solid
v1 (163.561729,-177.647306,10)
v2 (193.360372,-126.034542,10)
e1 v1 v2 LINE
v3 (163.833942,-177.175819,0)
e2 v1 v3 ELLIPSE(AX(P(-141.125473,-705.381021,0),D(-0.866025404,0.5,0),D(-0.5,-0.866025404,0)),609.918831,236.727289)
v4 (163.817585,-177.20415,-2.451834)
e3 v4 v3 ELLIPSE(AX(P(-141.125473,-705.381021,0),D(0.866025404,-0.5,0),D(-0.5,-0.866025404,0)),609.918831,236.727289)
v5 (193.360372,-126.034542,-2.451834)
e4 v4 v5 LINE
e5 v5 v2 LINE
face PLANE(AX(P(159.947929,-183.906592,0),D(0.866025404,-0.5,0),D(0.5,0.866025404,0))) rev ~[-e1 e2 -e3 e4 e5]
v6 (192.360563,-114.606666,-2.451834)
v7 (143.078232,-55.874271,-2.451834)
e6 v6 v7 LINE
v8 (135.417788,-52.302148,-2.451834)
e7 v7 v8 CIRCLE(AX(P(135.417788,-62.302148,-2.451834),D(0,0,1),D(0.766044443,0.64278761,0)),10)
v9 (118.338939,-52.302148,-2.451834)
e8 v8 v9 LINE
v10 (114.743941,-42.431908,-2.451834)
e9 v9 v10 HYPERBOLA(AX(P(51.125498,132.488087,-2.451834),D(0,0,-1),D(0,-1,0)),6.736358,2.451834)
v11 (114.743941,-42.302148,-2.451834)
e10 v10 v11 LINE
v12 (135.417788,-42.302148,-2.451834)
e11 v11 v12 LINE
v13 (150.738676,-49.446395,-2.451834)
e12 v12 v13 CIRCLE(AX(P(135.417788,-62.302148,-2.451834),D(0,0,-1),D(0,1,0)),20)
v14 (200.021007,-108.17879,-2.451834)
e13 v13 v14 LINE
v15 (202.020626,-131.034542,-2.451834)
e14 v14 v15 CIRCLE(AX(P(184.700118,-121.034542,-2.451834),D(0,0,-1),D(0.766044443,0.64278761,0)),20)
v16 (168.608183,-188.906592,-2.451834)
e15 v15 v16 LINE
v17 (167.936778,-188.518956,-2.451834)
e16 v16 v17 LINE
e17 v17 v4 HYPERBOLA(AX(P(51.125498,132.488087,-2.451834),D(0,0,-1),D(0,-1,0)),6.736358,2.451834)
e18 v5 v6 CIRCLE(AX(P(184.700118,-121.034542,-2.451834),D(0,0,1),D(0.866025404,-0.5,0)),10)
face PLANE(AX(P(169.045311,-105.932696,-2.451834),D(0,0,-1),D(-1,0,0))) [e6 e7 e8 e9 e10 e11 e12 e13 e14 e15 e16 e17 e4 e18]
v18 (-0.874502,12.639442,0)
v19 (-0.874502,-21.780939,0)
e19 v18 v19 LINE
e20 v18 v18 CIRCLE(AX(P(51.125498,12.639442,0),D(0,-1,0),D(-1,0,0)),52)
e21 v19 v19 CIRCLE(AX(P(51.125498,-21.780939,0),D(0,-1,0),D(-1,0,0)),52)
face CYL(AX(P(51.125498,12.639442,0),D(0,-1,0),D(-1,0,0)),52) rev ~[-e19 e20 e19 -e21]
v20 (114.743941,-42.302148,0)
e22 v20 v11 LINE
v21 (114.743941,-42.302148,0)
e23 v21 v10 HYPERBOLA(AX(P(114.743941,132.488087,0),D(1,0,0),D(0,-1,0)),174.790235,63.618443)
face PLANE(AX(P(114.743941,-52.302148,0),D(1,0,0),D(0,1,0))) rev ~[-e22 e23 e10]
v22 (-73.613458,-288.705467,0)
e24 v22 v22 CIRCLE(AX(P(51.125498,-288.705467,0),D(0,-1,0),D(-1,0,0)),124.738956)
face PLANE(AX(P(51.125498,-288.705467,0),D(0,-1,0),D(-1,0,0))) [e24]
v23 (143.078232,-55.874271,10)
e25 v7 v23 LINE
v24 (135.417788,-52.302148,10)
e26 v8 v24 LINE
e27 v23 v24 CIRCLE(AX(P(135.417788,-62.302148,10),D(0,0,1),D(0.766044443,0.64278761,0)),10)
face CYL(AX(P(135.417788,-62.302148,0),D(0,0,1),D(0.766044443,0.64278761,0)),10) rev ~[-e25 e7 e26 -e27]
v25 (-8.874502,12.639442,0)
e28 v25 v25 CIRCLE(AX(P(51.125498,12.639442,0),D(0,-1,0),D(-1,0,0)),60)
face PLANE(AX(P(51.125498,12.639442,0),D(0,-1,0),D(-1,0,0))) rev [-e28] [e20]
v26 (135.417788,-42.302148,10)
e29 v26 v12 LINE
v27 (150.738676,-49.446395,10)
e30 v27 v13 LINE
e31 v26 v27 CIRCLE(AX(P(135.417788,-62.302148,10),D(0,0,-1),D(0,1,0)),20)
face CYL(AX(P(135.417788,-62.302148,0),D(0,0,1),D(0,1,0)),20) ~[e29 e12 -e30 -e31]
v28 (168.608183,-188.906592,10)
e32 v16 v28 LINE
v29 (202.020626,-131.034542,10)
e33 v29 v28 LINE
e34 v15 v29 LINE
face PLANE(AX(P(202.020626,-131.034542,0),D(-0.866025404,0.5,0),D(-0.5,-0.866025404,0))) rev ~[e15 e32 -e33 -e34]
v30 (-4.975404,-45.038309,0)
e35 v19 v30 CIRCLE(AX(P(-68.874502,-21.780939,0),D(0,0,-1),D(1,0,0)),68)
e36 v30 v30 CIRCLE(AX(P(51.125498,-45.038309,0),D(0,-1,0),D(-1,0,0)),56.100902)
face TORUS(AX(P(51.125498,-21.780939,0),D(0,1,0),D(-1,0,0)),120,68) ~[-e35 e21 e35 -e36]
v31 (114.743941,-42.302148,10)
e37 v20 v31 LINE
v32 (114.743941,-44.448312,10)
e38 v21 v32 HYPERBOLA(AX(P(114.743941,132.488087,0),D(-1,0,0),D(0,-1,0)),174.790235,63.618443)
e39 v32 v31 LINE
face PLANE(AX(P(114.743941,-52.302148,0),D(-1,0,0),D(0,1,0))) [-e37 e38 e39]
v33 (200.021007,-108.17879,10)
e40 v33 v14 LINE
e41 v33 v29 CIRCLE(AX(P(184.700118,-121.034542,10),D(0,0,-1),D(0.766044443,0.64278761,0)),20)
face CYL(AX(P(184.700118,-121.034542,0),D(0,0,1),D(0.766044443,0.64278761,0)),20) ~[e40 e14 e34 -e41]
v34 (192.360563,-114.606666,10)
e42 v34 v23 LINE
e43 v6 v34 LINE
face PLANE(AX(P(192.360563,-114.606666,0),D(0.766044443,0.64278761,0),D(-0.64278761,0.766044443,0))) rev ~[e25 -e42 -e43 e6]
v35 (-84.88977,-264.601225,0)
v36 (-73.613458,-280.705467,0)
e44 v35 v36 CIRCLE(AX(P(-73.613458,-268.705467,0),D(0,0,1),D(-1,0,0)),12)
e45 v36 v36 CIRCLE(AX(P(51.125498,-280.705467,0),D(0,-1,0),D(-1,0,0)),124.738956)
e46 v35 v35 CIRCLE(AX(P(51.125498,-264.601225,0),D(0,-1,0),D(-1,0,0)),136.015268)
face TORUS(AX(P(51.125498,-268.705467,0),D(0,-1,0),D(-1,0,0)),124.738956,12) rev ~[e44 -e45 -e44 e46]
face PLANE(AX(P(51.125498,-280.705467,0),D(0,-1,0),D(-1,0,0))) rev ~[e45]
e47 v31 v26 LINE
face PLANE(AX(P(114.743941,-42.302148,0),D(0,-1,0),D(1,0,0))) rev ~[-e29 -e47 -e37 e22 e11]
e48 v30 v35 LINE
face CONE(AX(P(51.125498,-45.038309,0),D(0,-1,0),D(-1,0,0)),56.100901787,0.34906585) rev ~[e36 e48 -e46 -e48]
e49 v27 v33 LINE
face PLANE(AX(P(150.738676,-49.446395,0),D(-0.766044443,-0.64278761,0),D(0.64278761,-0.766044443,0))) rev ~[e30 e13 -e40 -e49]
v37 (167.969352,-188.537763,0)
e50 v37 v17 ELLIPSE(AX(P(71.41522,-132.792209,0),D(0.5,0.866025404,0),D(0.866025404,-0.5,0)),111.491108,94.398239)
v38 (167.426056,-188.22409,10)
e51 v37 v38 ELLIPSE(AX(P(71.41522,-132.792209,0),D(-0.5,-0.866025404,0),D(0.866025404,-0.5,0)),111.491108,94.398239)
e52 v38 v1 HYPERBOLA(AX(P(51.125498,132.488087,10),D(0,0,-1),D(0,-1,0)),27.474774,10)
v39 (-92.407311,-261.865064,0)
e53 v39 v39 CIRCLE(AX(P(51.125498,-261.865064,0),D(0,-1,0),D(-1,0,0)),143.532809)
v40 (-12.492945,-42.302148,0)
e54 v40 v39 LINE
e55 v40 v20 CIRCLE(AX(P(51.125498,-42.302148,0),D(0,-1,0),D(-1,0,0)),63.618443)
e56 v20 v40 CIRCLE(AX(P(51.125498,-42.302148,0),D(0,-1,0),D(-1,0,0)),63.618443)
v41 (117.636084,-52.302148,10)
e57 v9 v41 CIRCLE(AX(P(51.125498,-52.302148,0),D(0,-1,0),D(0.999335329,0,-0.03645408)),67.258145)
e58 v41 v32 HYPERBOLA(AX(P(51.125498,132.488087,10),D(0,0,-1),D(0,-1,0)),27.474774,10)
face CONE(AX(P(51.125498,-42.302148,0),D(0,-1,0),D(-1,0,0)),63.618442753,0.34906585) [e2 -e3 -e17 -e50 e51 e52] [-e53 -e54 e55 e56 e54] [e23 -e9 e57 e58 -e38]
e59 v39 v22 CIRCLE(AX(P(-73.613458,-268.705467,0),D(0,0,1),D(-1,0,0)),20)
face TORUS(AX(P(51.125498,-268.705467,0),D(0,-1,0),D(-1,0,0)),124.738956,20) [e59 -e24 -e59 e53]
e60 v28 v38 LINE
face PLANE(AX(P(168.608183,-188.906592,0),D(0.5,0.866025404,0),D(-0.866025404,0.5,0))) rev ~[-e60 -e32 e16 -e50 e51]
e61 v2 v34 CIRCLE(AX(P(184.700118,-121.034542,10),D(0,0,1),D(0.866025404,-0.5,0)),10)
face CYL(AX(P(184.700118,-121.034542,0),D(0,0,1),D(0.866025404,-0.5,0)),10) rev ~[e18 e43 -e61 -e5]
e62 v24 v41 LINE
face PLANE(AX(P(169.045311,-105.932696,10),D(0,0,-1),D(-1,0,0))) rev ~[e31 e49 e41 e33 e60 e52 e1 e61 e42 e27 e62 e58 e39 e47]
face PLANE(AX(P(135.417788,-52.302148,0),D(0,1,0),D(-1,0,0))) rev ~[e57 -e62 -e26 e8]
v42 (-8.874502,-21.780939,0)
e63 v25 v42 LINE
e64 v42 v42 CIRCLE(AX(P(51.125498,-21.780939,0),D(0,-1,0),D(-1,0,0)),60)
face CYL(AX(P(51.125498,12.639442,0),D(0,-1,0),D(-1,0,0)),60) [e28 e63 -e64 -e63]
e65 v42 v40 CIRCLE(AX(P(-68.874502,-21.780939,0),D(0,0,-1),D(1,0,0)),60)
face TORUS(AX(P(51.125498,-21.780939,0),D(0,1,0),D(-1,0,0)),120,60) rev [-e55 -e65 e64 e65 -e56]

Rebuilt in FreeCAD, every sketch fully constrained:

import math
import FreeCAD as App
import Part
import Sketcher
Q = App.Units.Quantity


def edges_at(feature, points):
    """Names of the edges that pass closest to the given points."""
    edges = feature.Shape.Edges
    near = lambda p: min(range(len(edges)), key=lambda i: edges[i].distToShape(Part.Vertex(*p))[0])
    return sorted({f"Edge{near(p) + 1}" for p in points})


def faces_at(feature, points):
    """Names of the faces that lie closest to the given points."""
    faces = feature.Shape.Faces
    near = lambda p: min(range(len(faces)), key=lambda i: faces[i].distToShape(Part.Vertex(*p))[0])
    return sorted({f"Face{near(p) + 1}" for p in points})

doc = App.newDocument("Part")
params = doc.addObject("Spreadsheet::Sheet", "Params")
for row, (alias, value) in enumerate([
    ("sketch1_radius", "60 mm"),
    ("sketch1_width", "60 mm"),
    ("revolution_angle", "360 deg"),
    ("thickness_wall", "8 mm"),
    ("fillet_radius", "12 mm"),
    ("fillet2_radius", "20 mm"),
    ("sketch2_radius", "10 mm"),
    ("sketch2_radius2", "20 mm"),
    ("pad1_length", "10 mm"),
    ("pad1_length2", "2.451834 mm"),
], start=1):
    params.set(f"A{row}", alias)
    params.set(f"B{row}", "=" + value)
    params.setAlias(f"B{row}", alias)

body = doc.addObject("PartDesign::Body", "Body")

# Sketch on XY plane
sketch1 = body.newObject("Sketcher::SketchObject", "Sketch")
sketch1.AttachmentSupport = (doc.getObject("XY_Plane"), [""])
sketch1.MapMode = "FlatFace"
sketch1.addGeometry([
    Part.LineSegment(App.Vector(-9, 13, 0), App.Vector(-9, -22, 0)),  # 0
    Part.ArcOfCircle(Part.Circle(App.Vector(-69, -22, 0), App.Vector(0, 0, 1), 60), math.radians(-20), math.radians(0)),  # 1
    Part.LineSegment(App.Vector(-12, -42, 0), App.Vector(-102, -289, 0)),  # 2
    Part.LineSegment(App.Vector(-102, -289, 0), App.Vector(51, -289, 0)),  # 3
    Part.LineSegment(App.Vector(51, -289, 0), App.Vector(51, 13, 0)),  # 4
    Part.LineSegment(App.Vector(51, 13, 0), App.Vector(-9, 13, 0)),  # 5
], False)
sketch1.addGeometry(Part.LineSegment(App.Vector(51, 13, 0), App.Vector(51, -289, 0)), True)  # axis
sketch1.addConstraint([
    Sketcher.Constraint("Tangent", 0, 2, 1, 2),
    Sketcher.Constraint("Tangent", 1, 1, 2, 1),
    Sketcher.Constraint("Coincident", 2, 2, 3, 1),
    Sketcher.Constraint("Coincident", 3, 2, 4, 1),
    Sketcher.Constraint("Coincident", 4, 2, 5, 1),
    Sketcher.Constraint("Coincident", 5, 2, 0, 1),
    Sketcher.Constraint("Vertical", 0),
    Sketcher.Constraint("Horizontal", 3),
    Sketcher.Constraint("Vertical", 4),
    Sketcher.Constraint("Horizontal", 5),
    Sketcher.Constraint("Vertical", 6),
    Sketcher.Constraint("Coincident", 6, 1, 4, 2),
    Sketcher.Constraint("Horizontal", 2, 2, 6, 2),
    Sketcher.Constraint("Radius", 1, Q("60 mm")),
    Sketcher.Constraint("DistanceX", 5, 2, 5, 1, Q("60 mm")),
    Sketcher.Constraint("Angle", 2, Q("-110 deg")),
    Sketcher.Constraint("DistanceY", 0, 2, 0, 1, Q("34.420381 mm")),
    Sketcher.Constraint("DistanceY", 4, 1, 4, 2, Q("301.344909 mm")),
    Sketcher.Constraint("DistanceX", 1, 3, -1, 1, Q("68.874502 mm")),
    Sketcher.Constraint("DistanceY", 1, 3, -1, 1, Q("21.780939 mm")),
])
sketch1.setExpression("Constraints[13]", "Params.sketch1_radius")
sketch1.setExpression("Constraints[14]", "Params.sketch1_width")
revolution = body.newObject("PartDesign::Revolution", "Revolution")
revolution.Profile = sketch1
revolution.ReferenceAxis = (sketch1, ["Axis0"])
revolution.setExpression("Angle", "Params.revolution_angle")
doc.recompute()

thickness = body.newObject("PartDesign::Thickness", "Thickness")
thickness.Base = (revolution, faces_at(revolution, [(51.125, 12.639, 0)]))
thickness.setExpression("Value", "Params.thickness_wall")
thickness.Reversed = True
thickness.Join = "Intersection"
doc.recompute()

fillet = body.newObject("PartDesign::Fillet", "Fillet")
fillet.Base = (thickness, edges_at(thickness, [(193.002, -280.705, 0)]))
fillet.setExpression("Radius", "Params.fillet_radius")
doc.recompute()

fillet2 = body.newObject("PartDesign::Fillet", "Fillet001")
fillet2.Base = (fillet, edges_at(fillet, [(204.427, -288.705, 0)]))
fillet2.setExpression("Radius", "Params.fillet2_radius")

# Sketch on XY plane
sketch2 = body.newObject("Sketcher::SketchObject", "Sketch001")
sketch2.AttachmentSupport = (doc.getObject("XY_Plane"), [""])
sketch2.MapMode = "FlatFace"
sketch2.addGeometry([
    Part.LineSegment(App.Vector(135, -42, 0), App.Vector(115, -42, 0)),  # 0
    Part.LineSegment(App.Vector(115, -42, 0), App.Vector(115, -52, 0)),  # 1
    Part.LineSegment(App.Vector(115, -52, 0), App.Vector(135, -52, 0)),  # 2
    Part.ArcOfCircle(Part.Circle(App.Vector(135, -62, 0), App.Vector(0, 0, 1), 10), math.radians(40), math.radians(90)),  # 3
    Part.LineSegment(App.Vector(143, -56, 0), App.Vector(192, -115, 0)),  # 4
    Part.ArcOfCircle(Part.Circle(App.Vector(185, -121, 0), App.Vector(0, 0, 1), 10), math.radians(-30), math.radians(40)),  # 5
    Part.LineSegment(App.Vector(193, -126, 0), App.Vector(160, -184, 0)),  # 6
    Part.LineSegment(App.Vector(160, -184, 0), App.Vector(169, -189, 0)),  # 7
    Part.LineSegment(App.Vector(169, -189, 0), App.Vector(202, -131, 0)),  # 8
    Part.ArcOfCircle(Part.Circle(App.Vector(185, -121, 0), App.Vector(0, 0, 1), 20), math.radians(-30), math.radians(40)),  # 9
    Part.LineSegment(App.Vector(200, -108, 0), App.Vector(151, -49, 0)),  # 10
    Part.ArcOfCircle(Part.Circle(App.Vector(135, -62, 0), App.Vector(0, 0, 1), 20), math.radians(40), math.radians(90)),  # 11
], False)
sketch2.addConstraint([
    Sketcher.Constraint("Coincident", 0, 2, 1, 1),
    Sketcher.Constraint("Coincident", 1, 2, 2, 1),
    Sketcher.Constraint("Tangent", 2, 2, 3, 2),
    Sketcher.Constraint("Tangent", 3, 1, 4, 1),
    Sketcher.Constraint("Tangent", 4, 2, 5, 2),
    Sketcher.Constraint("Tangent", 5, 1, 6, 1),
    Sketcher.Constraint("Coincident", 6, 2, 7, 1),
    Sketcher.Constraint("Coincident", 7, 2, 8, 1),
    Sketcher.Constraint("Tangent", 8, 2, 9, 1),
    Sketcher.Constraint("Tangent", 9, 2, 10, 1),
    Sketcher.Constraint("Tangent", 10, 2, 11, 1),
    Sketcher.Constraint("Tangent", 11, 2, 0, 1),
    Sketcher.Constraint("Horizontal", 0),
    Sketcher.Constraint("Vertical", 1),
    Sketcher.Constraint("Horizontal", 2),
    Sketcher.Constraint("Coincident", 9, 3, 5, 3),
    Sketcher.Constraint("Coincident", 11, 3, 3, 3),
    Sketcher.Constraint("Equal", 3, 5),
    Sketcher.Constraint("Equal", 9, 11),
    Sketcher.Constraint("Perpendicular", 6, 7),
    Sketcher.Constraint("Perpendicular", 7, 8),
    Sketcher.Constraint("Radius", 3, Q("10 mm")),
    Sketcher.Constraint("Radius", 9, Q("20 mm")),
    Sketcher.Constraint("Angle", 4, Q("-50 deg")),
    Sketcher.Constraint("Angle", 6, Q("-120 deg")),
    Sketcher.Constraint("DistanceX", 0, 2, 0, 1, Q("20.673847 mm")),
    Sketcher.Constraint("DistanceX", -1, 1, 5, 3, Q("184.700118 mm")),
    Sketcher.Constraint("DistanceX", -1, 1, 0, 2, Q("114.743941 mm")),
    Sketcher.Constraint("DistanceY", 3, 1, -1, 1, Q("55.874271 mm")),
    Sketcher.Constraint("DistanceX", -1, 1, 6, 2, Q("159.947929 mm")),
])
sketch2.setExpression("Constraints[21]", "Params.sketch2_radius")
sketch2.setExpression("Constraints[22]", "Params.sketch2_radius2")
pad1 = body.newObject("PartDesign::Pad", "Pad")
pad1.Profile = sketch2
pad1.Type = "TwoLengths"
pad1.setExpression("Length", "Params.pad1_length")
pad1.setExpression("Length2", "Params.pad1_length2")

doc.recompute()
